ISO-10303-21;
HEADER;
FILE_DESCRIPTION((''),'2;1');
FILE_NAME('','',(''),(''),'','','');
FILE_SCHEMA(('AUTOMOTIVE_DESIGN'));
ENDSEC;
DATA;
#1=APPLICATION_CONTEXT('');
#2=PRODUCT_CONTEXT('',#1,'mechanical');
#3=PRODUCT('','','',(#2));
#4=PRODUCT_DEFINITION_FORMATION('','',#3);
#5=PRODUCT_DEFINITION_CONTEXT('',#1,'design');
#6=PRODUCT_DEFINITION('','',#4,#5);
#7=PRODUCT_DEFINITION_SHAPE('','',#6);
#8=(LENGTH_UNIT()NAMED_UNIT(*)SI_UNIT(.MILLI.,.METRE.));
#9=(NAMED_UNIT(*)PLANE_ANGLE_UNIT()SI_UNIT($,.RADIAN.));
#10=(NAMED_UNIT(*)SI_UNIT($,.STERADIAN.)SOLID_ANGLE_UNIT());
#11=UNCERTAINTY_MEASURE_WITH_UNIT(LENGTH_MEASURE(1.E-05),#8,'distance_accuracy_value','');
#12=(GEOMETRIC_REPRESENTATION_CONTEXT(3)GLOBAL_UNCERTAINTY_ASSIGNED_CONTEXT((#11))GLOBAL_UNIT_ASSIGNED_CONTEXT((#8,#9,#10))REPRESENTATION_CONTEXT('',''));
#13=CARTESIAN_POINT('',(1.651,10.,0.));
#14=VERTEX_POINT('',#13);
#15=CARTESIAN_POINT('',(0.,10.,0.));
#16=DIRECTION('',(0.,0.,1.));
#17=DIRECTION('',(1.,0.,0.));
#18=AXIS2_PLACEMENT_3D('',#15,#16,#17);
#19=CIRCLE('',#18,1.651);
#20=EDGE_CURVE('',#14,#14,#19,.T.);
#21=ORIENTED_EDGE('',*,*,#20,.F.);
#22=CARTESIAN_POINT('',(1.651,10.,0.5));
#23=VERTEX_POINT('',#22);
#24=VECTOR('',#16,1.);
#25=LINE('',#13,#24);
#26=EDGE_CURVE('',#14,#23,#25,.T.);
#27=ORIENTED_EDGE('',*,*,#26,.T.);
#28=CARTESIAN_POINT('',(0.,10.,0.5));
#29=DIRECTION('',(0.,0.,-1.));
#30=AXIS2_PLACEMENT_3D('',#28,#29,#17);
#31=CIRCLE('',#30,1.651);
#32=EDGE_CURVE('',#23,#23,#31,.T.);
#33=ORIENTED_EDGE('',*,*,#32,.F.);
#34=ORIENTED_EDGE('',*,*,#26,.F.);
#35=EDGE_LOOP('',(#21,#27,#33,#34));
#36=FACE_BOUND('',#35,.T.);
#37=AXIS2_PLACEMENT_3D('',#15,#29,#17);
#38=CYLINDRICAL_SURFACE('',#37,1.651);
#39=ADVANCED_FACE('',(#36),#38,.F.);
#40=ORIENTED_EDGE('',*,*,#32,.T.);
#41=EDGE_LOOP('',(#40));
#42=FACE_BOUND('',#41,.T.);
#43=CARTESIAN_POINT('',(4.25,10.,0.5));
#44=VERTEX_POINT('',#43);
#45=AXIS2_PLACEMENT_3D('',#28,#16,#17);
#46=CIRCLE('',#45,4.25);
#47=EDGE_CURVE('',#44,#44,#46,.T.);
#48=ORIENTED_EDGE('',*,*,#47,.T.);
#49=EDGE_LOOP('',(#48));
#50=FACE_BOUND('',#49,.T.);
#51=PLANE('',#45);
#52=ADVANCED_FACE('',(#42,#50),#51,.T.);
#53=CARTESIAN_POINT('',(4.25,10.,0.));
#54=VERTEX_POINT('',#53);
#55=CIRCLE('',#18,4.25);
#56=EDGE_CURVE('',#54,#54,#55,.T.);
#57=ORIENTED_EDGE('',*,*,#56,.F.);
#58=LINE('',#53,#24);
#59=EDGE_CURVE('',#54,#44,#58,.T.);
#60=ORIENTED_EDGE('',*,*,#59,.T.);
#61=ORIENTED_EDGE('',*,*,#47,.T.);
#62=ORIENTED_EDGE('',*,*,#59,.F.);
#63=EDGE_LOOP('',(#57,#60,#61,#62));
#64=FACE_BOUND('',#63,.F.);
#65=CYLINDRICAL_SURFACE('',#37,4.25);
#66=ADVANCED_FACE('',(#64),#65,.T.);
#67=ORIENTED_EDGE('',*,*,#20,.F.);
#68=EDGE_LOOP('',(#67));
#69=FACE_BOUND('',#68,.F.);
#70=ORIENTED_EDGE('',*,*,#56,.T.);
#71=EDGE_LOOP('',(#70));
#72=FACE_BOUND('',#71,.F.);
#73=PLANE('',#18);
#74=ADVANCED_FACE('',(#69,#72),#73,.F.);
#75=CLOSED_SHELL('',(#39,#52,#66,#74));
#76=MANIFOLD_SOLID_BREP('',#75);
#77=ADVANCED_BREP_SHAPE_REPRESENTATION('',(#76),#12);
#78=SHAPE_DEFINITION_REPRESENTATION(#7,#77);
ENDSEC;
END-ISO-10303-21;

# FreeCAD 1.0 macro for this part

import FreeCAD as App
import Part
import Sketcher

V = App.Vector
Q = App.Units.Quantity

doc = App.newDocument("Part")
body = doc.addObject("PartDesign::Body", "Body")

# Sketch on XY plane
sketch1 = doc.addObject("Sketcher::SketchObject", "Sketch")
body.addObject(sketch1)
sketch1.AttachmentSupport = (doc.XY_Plane, [""])
sketch1.MapMode = "FlatFace"
sketch1.addGeometry(Part.Circle(V(0, 10, 0), V(0, 0, 1), 1.7), False)
sketch1.addConstraint(Sketcher.Constraint("PointOnObject", 0, 3, -2))
sketch1.addConstraint(Sketcher.Constraint("Diameter", 0, Q("3.302 mm")))
sketch1.addConstraint(Sketcher.Constraint("DistanceY", -1, 1, 0, 3, Q("10 mm")))
pad1 = doc.addObject("PartDesign::Pad", "Pad")
body.addObject(pad1)
pad1.Profile = sketch1
pad1.Length = 0.8
body2 = doc.addObject("PartDesign::Body", "Body001")

# Sketch on XY plane
sketch2 = doc.addObject("Sketcher::SketchObject", "Sketch001")
body2.addObject(sketch2)
sketch2.AttachmentSupport = (doc.getObject("XY_Plane001"), [""])
sketch2.MapMode = "FlatFace"
sketch2.addGeometry(Part.Circle(V(0, 10, 0), V(0, 0, 1), 4.2), False)
sketch2.addConstraint(Sketcher.Constraint("PointOnObject", 0, 3, -2))
sketch2.addConstraint(Sketcher.Constraint("Diameter", 0, Q("8.5 mm")))
sketch2.addConstraint(Sketcher.Constraint("DistanceY", -1, 1, 0, 3, Q("10 mm")))
pad2 = doc.addObject("PartDesign::Pad", "Pad001")
body2.addObject(pad2)
pad2.Profile = sketch2
pad2.Length = 0.5
doc.recompute()

boolean = doc.addObject("PartDesign::Boolean", "Boolean")
body2.addObject(boolean)
boolean.Type = "Cut"
boolean.addObjects([body])

doc.recompute()
